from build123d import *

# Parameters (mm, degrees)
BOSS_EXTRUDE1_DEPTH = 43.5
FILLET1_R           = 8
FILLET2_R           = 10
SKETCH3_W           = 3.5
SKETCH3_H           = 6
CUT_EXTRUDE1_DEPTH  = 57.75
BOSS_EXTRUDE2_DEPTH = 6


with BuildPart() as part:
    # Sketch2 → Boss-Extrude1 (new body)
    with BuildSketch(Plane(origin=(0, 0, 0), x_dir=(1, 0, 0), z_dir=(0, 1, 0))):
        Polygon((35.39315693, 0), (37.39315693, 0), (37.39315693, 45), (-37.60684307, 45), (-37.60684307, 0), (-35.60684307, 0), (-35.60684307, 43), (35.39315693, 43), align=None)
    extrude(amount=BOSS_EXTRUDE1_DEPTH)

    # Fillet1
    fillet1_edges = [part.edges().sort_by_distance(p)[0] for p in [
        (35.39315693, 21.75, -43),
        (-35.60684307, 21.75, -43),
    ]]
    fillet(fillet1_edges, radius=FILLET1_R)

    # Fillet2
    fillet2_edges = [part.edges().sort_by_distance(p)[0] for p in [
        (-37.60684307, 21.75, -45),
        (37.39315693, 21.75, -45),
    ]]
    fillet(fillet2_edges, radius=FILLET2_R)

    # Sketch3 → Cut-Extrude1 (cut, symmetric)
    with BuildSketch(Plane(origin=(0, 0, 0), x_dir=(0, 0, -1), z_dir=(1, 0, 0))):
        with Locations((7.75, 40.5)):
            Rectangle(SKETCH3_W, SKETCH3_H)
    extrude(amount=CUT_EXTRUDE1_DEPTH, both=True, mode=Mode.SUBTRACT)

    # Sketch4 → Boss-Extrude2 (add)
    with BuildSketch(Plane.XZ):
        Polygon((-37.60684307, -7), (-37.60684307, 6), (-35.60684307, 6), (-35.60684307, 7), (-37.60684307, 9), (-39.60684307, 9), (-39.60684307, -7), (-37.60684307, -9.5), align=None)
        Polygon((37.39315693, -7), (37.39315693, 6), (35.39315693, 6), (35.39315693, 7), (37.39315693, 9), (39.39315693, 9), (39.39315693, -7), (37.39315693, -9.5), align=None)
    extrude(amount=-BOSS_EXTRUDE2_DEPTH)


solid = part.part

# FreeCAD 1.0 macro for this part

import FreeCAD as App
import Part
import Sketcher


def edges_at(feature, points):
    """Names of the edges that pass closest to the given points."""
    edges = feature.Shape.Edges
    near = lambda p: min(range(len(edges)), key=lambda i: edges[i].distToShape(Part.Vertex(*p))[0])
    return sorted({f"Edge{near(p) + 1}" for p in points})

doc = App.newDocument("Part")
params = doc.addObject("Spreadsheet::Sheet", "Params")
for row, (alias, value) in enumerate([
    ("sketch1_width", "2 mm"),
    ("sketch1_width2", "75 mm"),
    ("sketch1_height", "45 mm"),
    ("sketch1_height2", "43 mm"),
    ("pad1_length", "43.5 mm"),
    ("fillet_radius", "8 mm"),
    ("fillet2_radius", "10 mm"),
    ("sketch2_width", "6 mm"),
    ("sketch2_height", "3.5 mm"),
    ("pocket1_length", "115.5 mm"),
    ("sketch3_width", "2 mm"),
    ("sketch3_height", "1 mm"),
    ("sketch3_height2", "16 mm"),
    ("sketch3_height3", "15.5 mm"),
    ("pad2_length", "6 mm"),
], start=1):
    params.set(f"A{row}", alias)
    params.set(f"B{row}", "=" + value)
    params.setAlias(f"B{row}", alias)

body = doc.addObject("PartDesign::Body", "Body")

# Sketch on XZ plane
sketch1 = doc.addObject("Sketcher::SketchObject", "Sketch")
body.addObject(sketch1)
sketch1.AttachmentSupport = (doc.XZ_Plane, [""])
sketch1.MapMode = "FlatFace"
sketch1.addGeometry([
    Part.LineSegment(App.Vector(35.4, 0, 0), App.Vector(37.4, 0, 0)),  # 0
    Part.LineSegment(App.Vector(37.4, 0, 0), App.Vector(37.4, -45, 0)),  # 1
    Part.LineSegment(App.Vector(37.4, -45, 0), App.Vector(-37.6, -45, 0)),  # 2
    Part.LineSegment(App.Vector(-37.6, -45, 0), App.Vector(-37.6, 0, 0)),  # 3
    Part.LineSegment(App.Vector(-37.6, 0, 0), App.Vector(-35.6, 0, 0)),  # 4
    Part.LineSegment(App.Vector(-35.6, 0, 0), App.Vector(-35.6, -43, 0)),  # 5
    Part.LineSegment(App.Vector(-35.6, -43, 0), App.Vector(35.4, -43, 0)),  # 6
    Part.LineSegment(App.Vector(35.4, -43, 0), App.Vector(35.4, 0, 0)),  # 7
], False)
sketch1.addConstraint([
    Sketcher.Constraint("Coincident", 0, 2, 1, 1),
    Sketcher.Constraint("Coincident", 1, 2, 2, 1),
    Sketcher.Constraint("Coincident", 2, 2, 3, 1),
    Sketcher.Constraint("Coincident", 3, 2, 4, 1),
    Sketcher.Constraint("Coincident", 4, 2, 5, 1),
    Sketcher.Constraint("Coincident", 5, 2, 6, 1),
    Sketcher.Constraint("Coincident", 6, 2, 7, 1),
    Sketcher.Constraint("Coincident", 7, 2, 0, 1),
    Sketcher.Constraint("Horizontal", 0),
    Sketcher.Constraint("Vertical", 1),
    Sketcher.Constraint("Horizontal", 2),
    Sketcher.Constraint("Vertical", 3),
    Sketcher.Constraint("Horizontal", 4),
    Sketcher.Constraint("Vertical", 5),
    Sketcher.Constraint("Horizontal", 6),
    Sketcher.Constraint("Vertical", 7),
    Sketcher.Constraint("PointOnObject", 0, 2, -1),
    Sketcher.Constraint("PointOnObject", 3, 2, -1),
    Sketcher.Constraint("Equal", 0, 4),
    Sketcher.Constraint("DistanceX", 0, 1, 0, 2, 2.0),
    Sketcher.Constraint("DistanceX", 2, 2, 2, 1, 75.0),
    Sketcher.Constraint("DistanceY", 1, 2, 1, 1, 45.0),
    Sketcher.Constraint("DistanceY", 5, 2, 5, 1, 43.0),
    Sketcher.Constraint("DistanceX", -1, 1, 0, 2, 37.393157),
])
sketch1.setExpression("Constraints[19]", "Params.sketch1_width")
sketch1.setExpression("Constraints[20]", "Params.sketch1_width2")
sketch1.setExpression("Constraints[21]", "Params.sketch1_height")
sketch1.setExpression("Constraints[22]", "Params.sketch1_height2")
pad1 = doc.addObject("PartDesign::Pad", "Pad")
body.addObject(pad1)
pad1.Profile = sketch1
pad1.setExpression("Length", "Params.pad1_length")
pad1.Reversed = True
doc.recompute()

fillet = doc.addObject("PartDesign::Fillet", "Fillet")
body.addObject(fillet)
fillet.Base = (pad1, edges_at(pad1, [(35.393, 21.75, -43), (-35.607, 21.75, -43)]))
fillet.setExpression("Radius", "Params.fillet_radius")
doc.recompute()

fillet2 = doc.addObject("PartDesign::Fillet", "Fillet001")
body.addObject(fillet2)
fillet2.Base = (fillet, edges_at(fillet, [(-37.607, 21.75, -45), (37.393, 21.75, -45)]))
fillet2.setExpression("Radius", "Params.fillet2_radius")

# Sketch on YZ plane
sketch2 = doc.addObject("Sketcher::SketchObject", "Sketch001")
body.addObject(sketch2)
sketch2.AttachmentSupport = (doc.YZ_Plane, [""])
sketch2.MapMode = "FlatFace"
sketch2.addGeometry([
    Part.LineSegment(App.Vector(43.5, -6, 0), App.Vector(37.5, -6, 0)),
    Part.LineSegment(App.Vector(37.5, -6, 0), App.Vector(37.5, -9.5, 0)),
    Part.LineSegment(App.Vector(37.5, -9.5, 0), App.Vector(43.5, -9.5, 0)),
    Part.LineSegment(App.Vector(43.5, -9.5, 0), App.Vector(43.5, -6, 0)),
], False)
sketch2.addConstraint([
    Sketcher.Constraint("Coincident", 0, 2, 1, 1),
    Sketcher.Constraint("Coincident", 1, 2, 2, 1),
    Sketcher.Constraint("Coincident", 2, 2, 3, 1),
    Sketcher.Constraint("Coincident", 3, 2, 0, 1),
    Sketcher.Constraint("Horizontal", 0),
    Sketcher.Constraint("Vertical", 1),
    Sketcher.Constraint("Horizontal", 2),
    Sketcher.Constraint("Vertical", 3),
    Sketcher.Constraint("DistanceX", 0, 2, 0, 1, 6.0),
    Sketcher.Constraint("DistanceY", 1, 2, 1, 1, 3.5),
    Sketcher.Constraint("DistanceY", 0, 2, -1, 1, 6.0),
    Sketcher.Constraint("DistanceX", -1, 1, 0, 2, 37.5),
])
sketch2.setExpression("Constraints[8]", "Params.sketch2_width")
sketch2.setExpression("Constraints[9]", "Params.sketch2_height")
pocket1 = doc.addObject("PartDesign::Pocket", "Pocket")
body.addObject(pocket1)
pocket1.Profile = sketch2
pocket1.setExpression("Length", "Params.pocket1_length")
pocket1.Midplane = True

# Sketch on XZ plane
sketch3 = doc.addObject("Sketcher::SketchObject", "Sketch002")
body.addObject(sketch3)
sketch3.AttachmentSupport = (doc.XZ_Plane, [""])
sketch3.MapMode = "FlatFace"
sketch3.addGeometry([
    Part.LineSegment(App.Vector(-37.6, 6, 0), App.Vector(-35.6, 6, 0)),  # 0
    Part.LineSegment(App.Vector(-35.6, 6, 0), App.Vector(-35.6, 7, 0)),  # 1
    Part.LineSegment(App.Vector(-35.6, 7, 0), App.Vector(-37.6, 9, 0)),  # 2
    Part.LineSegment(App.Vector(-37.6, 9, 0), App.Vector(-39.6, 9, 0)),  # 3
    Part.LineSegment(App.Vector(-39.6, 9, 0), App.Vector(-39.6, -7, 0)),  # 4
    Part.LineSegment(App.Vector(-39.6, -7, 0), App.Vector(-37.6, -9.5, 0)),  # 5
    Part.LineSegment(App.Vector(-37.6, -9.5, 0), App.Vector(-37.6, 6, 0)),  # 6
    Part.LineSegment(App.Vector(37.4, 6, 0), App.Vector(37.4, -9.5, 0)),  # 7
    Part.LineSegment(App.Vector(37.4, -9.5, 0), App.Vector(39.4, -7, 0)),  # 8
    Part.LineSegment(App.Vector(39.4, -7, 0), App.Vector(39.4, 9, 0)),  # 9
    Part.LineSegment(App.Vector(39.4, 9, 0), App.Vector(37.4, 9, 0)),  # 10
    Part.LineSegment(App.Vector(37.4, 9, 0), App.Vector(35.4, 7, 0)),  # 11
    Part.LineSegment(App.Vector(35.4, 7, 0), App.Vector(35.4, 6, 0)),  # 12
    Part.LineSegment(App.Vector(35.4, 6, 0), App.Vector(37.4, 6, 0)),  # 13
], False)
sketch3.addConstraint([
    Sketcher.Constraint("Coincident", 0, 2, 1, 1),
    Sketcher.Constraint("Coincident", 1, 2, 2, 1),
    Sketcher.Constraint("Coincident", 2, 2, 3, 1),
    Sketcher.Constraint("Coincident", 3, 2, 4, 1),
    Sketcher.Constraint("Coincident", 4, 2, 5, 1),
    Sketcher.Constraint("Coincident", 5, 2, 6, 1),
    Sketcher.Constraint("Coincident", 6, 2, 0, 1),
    Sketcher.Constraint("Coincident", 7, 2, 8, 1),
    Sketcher.Constraint("Coincident", 8, 2, 9, 1),
    Sketcher.Constraint("Coincident", 9, 2, 10, 1),
    Sketcher.Constraint("Coincident", 10, 2, 11, 1),
    Sketcher.Constraint("Coincident", 11, 2, 12, 1),
    Sketcher.Constraint("Coincident", 12, 2, 13, 1),
    Sketcher.Constraint("Coincident", 13, 2, 7, 1),
    Sketcher.Constraint("Horizontal", 0),
    Sketcher.Constraint("Vertical", 1),
    Sketcher.Constraint("Horizontal", 3),
    Sketcher.Constraint("Vertical", 4),
    Sketcher.Constraint("Vertical", 6),
    Sketcher.Constraint("Vertical", 7),
    Sketcher.Constraint("Vertical", 9),
    Sketcher.Constraint("Horizontal", 10),
    Sketcher.Constraint("Vertical", 12),
    Sketcher.Constraint("Horizontal", 13),
    Sketcher.Constraint("Perpendicular", 2, 11),
    Sketcher.Constraint("Horizontal", 5, 2, 7, 2),
    Sketcher.Constraint("Horizontal", 4, 2, 8, 2),
    Sketcher.Constraint("Horizontal", 3, 2, 9, 2),
    Sketcher.Constraint("Horizontal", 1, 2, 11, 2),
    Sketcher.Constraint("Horizontal", 6, 2, 12, 2),
    Sketcher.Constraint("Vertical", 2, 2, 5, 2),
    Sketcher.Constraint("Vertical", 7, 2, 10, 2),
    Sketcher.Constraint("Equal", 0, 3),
    Sketcher.Constraint("Equal", 3, 10),
    Sketcher.Constraint("Equal", 10, 13),
    Sketcher.Constraint("DistanceX", 0, 1, 0, 2, 2.0),
    Sketcher.Constraint("DistanceY", 1, 1, 1, 2, 1.0),
    Sketcher.Constraint("DistanceY", 4, 2, 4, 1, 16.0),
    Sketcher.Constraint("DistanceY", 6, 1, 6, 2, 15.5),
    Sketcher.Constraint("DistanceY", -1, 1, 0, 2, 6.0),
    Sketcher.Constraint("DistanceX", 0, 2, 7, 2, 73.0),
    Sketcher.Constraint("DistanceX", 0, 2, -1, 1, 35.606843),
])
sketch3.setExpression("Constraints[35]", "Params.sketch3_width")
sketch3.setExpression("Constraints[36]", "Params.sketch3_height")
sketch3.setExpression("Constraints[37]", "Params.sketch3_height2")
sketch3.setExpression("Constraints[38]", "Params.sketch3_height3")
pad2 = doc.addObject("PartDesign::Pad", "Pad001")
body.addObject(pad2)
pad2.Profile = sketch3
pad2.setExpression("Length", "Params.pad2_length")
pad2.Reversed = True

doc.recompute()
